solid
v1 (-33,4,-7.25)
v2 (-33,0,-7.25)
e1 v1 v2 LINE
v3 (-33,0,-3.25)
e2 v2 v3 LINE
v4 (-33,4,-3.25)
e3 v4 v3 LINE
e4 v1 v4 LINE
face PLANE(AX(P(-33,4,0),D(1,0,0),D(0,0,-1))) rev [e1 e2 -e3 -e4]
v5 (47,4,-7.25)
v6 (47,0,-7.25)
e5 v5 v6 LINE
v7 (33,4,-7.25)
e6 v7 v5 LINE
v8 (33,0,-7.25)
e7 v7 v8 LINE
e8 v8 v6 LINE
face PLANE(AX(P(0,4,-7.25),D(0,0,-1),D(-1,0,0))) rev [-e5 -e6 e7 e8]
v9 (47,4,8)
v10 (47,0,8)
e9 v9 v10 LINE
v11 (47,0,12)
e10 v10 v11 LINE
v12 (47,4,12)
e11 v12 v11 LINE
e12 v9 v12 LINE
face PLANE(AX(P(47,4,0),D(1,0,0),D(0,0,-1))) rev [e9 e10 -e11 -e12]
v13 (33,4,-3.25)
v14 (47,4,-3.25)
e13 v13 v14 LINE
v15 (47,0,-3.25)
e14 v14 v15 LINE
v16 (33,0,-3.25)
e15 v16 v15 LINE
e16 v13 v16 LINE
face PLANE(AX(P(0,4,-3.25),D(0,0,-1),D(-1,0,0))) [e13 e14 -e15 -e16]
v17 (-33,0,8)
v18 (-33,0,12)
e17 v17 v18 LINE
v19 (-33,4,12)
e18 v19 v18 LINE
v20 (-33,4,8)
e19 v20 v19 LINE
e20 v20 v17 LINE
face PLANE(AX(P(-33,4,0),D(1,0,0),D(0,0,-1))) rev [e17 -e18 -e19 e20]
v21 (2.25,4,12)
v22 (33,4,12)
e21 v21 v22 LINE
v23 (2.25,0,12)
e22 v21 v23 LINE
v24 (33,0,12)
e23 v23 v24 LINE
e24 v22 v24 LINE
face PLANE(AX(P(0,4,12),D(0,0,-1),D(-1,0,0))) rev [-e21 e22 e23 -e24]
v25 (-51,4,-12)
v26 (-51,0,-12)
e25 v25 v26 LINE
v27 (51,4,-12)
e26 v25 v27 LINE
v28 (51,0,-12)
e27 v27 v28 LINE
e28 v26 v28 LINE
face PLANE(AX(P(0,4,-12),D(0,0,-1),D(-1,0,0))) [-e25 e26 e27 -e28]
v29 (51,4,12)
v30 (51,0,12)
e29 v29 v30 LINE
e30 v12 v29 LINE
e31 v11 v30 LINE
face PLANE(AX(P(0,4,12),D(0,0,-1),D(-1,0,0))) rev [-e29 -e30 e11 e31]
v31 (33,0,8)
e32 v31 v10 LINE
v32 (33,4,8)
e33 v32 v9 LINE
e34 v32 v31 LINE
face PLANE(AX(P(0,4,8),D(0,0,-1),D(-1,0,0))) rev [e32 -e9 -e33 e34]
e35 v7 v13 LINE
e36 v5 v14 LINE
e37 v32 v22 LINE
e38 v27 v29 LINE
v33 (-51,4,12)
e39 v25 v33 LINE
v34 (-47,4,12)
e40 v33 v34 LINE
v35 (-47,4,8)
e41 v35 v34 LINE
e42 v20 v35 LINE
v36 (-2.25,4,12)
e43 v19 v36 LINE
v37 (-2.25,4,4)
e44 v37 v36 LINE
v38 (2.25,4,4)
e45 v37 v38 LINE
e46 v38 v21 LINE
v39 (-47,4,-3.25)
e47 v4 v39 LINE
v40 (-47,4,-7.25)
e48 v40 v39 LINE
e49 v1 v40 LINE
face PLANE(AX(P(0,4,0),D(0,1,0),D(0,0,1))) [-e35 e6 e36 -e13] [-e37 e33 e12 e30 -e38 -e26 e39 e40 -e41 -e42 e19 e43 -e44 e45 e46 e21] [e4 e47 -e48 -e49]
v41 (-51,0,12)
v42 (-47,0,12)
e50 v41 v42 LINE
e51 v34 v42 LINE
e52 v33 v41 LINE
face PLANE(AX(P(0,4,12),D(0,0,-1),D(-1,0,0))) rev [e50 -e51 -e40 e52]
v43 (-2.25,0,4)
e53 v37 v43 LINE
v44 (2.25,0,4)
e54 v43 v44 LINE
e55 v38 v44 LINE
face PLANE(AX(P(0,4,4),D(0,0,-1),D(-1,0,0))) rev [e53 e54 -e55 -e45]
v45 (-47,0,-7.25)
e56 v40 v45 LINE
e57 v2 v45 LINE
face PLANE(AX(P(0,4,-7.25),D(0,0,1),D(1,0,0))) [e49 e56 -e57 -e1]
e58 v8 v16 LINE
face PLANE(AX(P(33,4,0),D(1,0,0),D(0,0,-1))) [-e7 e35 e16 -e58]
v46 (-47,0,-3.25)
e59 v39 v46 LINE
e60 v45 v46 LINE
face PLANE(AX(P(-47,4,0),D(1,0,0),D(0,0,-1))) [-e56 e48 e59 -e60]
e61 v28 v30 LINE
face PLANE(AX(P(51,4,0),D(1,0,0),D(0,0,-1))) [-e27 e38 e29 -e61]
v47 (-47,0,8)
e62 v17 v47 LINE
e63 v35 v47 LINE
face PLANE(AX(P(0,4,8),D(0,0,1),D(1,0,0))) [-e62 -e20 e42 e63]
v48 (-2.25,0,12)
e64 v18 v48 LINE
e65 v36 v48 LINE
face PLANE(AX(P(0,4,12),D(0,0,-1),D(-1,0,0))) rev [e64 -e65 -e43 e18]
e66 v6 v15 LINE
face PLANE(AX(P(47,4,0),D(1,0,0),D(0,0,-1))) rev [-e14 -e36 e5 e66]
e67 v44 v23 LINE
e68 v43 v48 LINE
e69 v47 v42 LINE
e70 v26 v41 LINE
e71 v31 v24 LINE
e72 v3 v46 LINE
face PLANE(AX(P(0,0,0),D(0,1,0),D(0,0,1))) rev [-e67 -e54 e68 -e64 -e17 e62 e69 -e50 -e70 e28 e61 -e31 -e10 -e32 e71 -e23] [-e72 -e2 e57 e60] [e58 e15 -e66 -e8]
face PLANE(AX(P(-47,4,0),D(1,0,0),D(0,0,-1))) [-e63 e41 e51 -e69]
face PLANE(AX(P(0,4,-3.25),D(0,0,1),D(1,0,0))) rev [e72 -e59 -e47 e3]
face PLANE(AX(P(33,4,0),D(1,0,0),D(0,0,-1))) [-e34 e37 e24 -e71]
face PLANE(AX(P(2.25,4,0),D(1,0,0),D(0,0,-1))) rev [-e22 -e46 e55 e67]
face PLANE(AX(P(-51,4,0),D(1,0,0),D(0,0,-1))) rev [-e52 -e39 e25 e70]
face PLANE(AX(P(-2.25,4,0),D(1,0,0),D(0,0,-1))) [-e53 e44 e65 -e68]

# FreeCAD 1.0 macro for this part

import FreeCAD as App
import Part
import Sketcher


def add_polygon(sketch, points):
    """Adds a closed chain of lines whose ends are joined by coincident constraints."""
    first, n = sketch.GeometryCount, len(points)
    for a, b in zip(points, points[1:] + points[:1]):
        sketch.addGeometry(Part.LineSegment(App.Vector(*a, 0), App.Vector(*b, 0)), False)
    for i in range(n):
        sketch.addConstraint(Sketcher.Constraint("Coincident", first + i, 2, first + (i + 1) % n, 1))

doc = App.newDocument("Part")
params = doc.addObject("Spreadsheet::Sheet", "Params")
for row, (alias, value) in enumerate([
    ("sketch1_width", "102 mm"),
    ("sketch1_width2", "4 mm"),
    ("sketch1_width3", "14 mm"),
    ("sketch1_height", "24 mm"),
    ("sketch1_height2", "8 mm"),
    ("pad1_length", "4 mm"),
], start=1):
    params.set(f"A{row}", alias)
    params.set(f"B{row}", "=" + value)
    params.setAlias(f"B{row}", alias)

body = doc.addObject("PartDesign::Body", "Body")

# Sketch on XZ plane
sketch1 = doc.addObject("Sketcher::SketchObject", "Sketch")
body.addObject(sketch1)
sketch1.AttachmentSupport = (doc.XZ_Plane, [""])
sketch1.MapMode = "FlatFace"
add_polygon(sketch1, [(51, -12), (-51, -12), (-51, 12), (-47, 12), (-47, 8), (-33, 8), (-33, 12), (-2.25, 12), (-2.25, 4), (2.25, 4), (2.25, 12), (33, 12), (33, 8), (47, 8), (47, 12), (51, 12)])  # lines 0-15
add_polygon(sketch1, [(-33, -3.25), (-47, -3.25), (-47, -7.25), (-33, -7.25)])  # lines 16-19
add_polygon(sketch1, [(47, -3.25), (33, -3.25), (33, -7.25), (47, -7.25)])  # lines 20-23
sketch1.addConstraint([
    Sketcher.Constraint("Horizontal", 0),
    Sketcher.Constraint("Vertical", 1),
    Sketcher.Constraint("Horizontal", 2),
    Sketcher.Constraint("Vertical", 3),
    Sketcher.Constraint("Horizontal", 4),
    Sketcher.Constraint("Vertical", 5),
    Sketcher.Constraint("Horizontal", 6),
    Sketcher.Constraint("Vertical", 7),
    Sketcher.Constraint("Horizontal", 8),
    Sketcher.Constraint("Vertical", 9),
    Sketcher.Constraint("Horizontal", 10),
    Sketcher.Constraint("Vertical", 11),
    Sketcher.Constraint("Horizontal", 12),
    Sketcher.Constraint("Vertical", 13),
    Sketcher.Constraint("Horizontal", 14),
    Sketcher.Constraint("Vertical", 15),
    Sketcher.Constraint("Horizontal", 16),
    Sketcher.Constraint("Vertical", 17),
    Sketcher.Constraint("Horizontal", 18),
    Sketcher.Constraint("Vertical", 19),
    Sketcher.Constraint("Horizontal", 20),
    Sketcher.Constraint("Vertical", 21),
    Sketcher.Constraint("Horizontal", 22),
    Sketcher.Constraint("Vertical", 23),
    Sketcher.Constraint("Symmetric", 0, 2, 14, 2, -1, 1),
    Sketcher.Constraint("Symmetric", 6, 2, 9, 2, -2),
    Sketcher.Constraint("Symmetric", 4, 2, 11, 2, -2),
    Sketcher.Constraint("Symmetric", 2, 2, 13, 2, -2),
    Sketcher.Constraint("Symmetric", 19, 2, 20, 2, -2),
    Sketcher.Constraint("Symmetric", 17, 2, 22, 2, -2),
    Sketcher.Constraint("Horizontal", 2, 2, 5, 2),
    Sketcher.Constraint("Vertical", 3, 2, 16, 2),
    Sketcher.Constraint("Vertical", 5, 2, 18, 2),
    Sketcher.Constraint("Equal", 14, 3),
    Sketcher.Constraint("Equal", 13, 17),
    Sketcher.Constraint("DistanceX", 0, 2, 0, 1, 102.0),
    Sketcher.Constraint("DistanceX", 2, 1, 2, 2, 4.0),
    Sketcher.Constraint("DistanceX", 4, 1, 4, 2, 14.0),
    Sketcher.Constraint("DistanceY", 1, 1, 1, 2, 24.0),
    Sketcher.Constraint("DistanceY", 7, 2, 7, 1, 8.0),
    Sketcher.Constraint("DistanceX", 8, 1, 8, 2, 4.5),
    Sketcher.Constraint("DistanceY", 16, 2, -1, 1, 3.25),
])
sketch1.setExpression("Constraints[59]", "Params.sketch1_width")
sketch1.setExpression("Constraints[60]", "Params.sketch1_width2")
sketch1.setExpression("Constraints[61]", "Params.sketch1_width3")
sketch1.setExpression("Constraints[62]", "Params.sketch1_height")
sketch1.setExpression("Constraints[63]", "Params.sketch1_height2")
pad1 = doc.addObject("PartDesign::Pad", "Pad")
body.addObject(pad1)
pad1.Profile = sketch1
pad1.setExpression("Length", "Params.pad1_length")
pad1.Reversed = True

doc.recompute()
